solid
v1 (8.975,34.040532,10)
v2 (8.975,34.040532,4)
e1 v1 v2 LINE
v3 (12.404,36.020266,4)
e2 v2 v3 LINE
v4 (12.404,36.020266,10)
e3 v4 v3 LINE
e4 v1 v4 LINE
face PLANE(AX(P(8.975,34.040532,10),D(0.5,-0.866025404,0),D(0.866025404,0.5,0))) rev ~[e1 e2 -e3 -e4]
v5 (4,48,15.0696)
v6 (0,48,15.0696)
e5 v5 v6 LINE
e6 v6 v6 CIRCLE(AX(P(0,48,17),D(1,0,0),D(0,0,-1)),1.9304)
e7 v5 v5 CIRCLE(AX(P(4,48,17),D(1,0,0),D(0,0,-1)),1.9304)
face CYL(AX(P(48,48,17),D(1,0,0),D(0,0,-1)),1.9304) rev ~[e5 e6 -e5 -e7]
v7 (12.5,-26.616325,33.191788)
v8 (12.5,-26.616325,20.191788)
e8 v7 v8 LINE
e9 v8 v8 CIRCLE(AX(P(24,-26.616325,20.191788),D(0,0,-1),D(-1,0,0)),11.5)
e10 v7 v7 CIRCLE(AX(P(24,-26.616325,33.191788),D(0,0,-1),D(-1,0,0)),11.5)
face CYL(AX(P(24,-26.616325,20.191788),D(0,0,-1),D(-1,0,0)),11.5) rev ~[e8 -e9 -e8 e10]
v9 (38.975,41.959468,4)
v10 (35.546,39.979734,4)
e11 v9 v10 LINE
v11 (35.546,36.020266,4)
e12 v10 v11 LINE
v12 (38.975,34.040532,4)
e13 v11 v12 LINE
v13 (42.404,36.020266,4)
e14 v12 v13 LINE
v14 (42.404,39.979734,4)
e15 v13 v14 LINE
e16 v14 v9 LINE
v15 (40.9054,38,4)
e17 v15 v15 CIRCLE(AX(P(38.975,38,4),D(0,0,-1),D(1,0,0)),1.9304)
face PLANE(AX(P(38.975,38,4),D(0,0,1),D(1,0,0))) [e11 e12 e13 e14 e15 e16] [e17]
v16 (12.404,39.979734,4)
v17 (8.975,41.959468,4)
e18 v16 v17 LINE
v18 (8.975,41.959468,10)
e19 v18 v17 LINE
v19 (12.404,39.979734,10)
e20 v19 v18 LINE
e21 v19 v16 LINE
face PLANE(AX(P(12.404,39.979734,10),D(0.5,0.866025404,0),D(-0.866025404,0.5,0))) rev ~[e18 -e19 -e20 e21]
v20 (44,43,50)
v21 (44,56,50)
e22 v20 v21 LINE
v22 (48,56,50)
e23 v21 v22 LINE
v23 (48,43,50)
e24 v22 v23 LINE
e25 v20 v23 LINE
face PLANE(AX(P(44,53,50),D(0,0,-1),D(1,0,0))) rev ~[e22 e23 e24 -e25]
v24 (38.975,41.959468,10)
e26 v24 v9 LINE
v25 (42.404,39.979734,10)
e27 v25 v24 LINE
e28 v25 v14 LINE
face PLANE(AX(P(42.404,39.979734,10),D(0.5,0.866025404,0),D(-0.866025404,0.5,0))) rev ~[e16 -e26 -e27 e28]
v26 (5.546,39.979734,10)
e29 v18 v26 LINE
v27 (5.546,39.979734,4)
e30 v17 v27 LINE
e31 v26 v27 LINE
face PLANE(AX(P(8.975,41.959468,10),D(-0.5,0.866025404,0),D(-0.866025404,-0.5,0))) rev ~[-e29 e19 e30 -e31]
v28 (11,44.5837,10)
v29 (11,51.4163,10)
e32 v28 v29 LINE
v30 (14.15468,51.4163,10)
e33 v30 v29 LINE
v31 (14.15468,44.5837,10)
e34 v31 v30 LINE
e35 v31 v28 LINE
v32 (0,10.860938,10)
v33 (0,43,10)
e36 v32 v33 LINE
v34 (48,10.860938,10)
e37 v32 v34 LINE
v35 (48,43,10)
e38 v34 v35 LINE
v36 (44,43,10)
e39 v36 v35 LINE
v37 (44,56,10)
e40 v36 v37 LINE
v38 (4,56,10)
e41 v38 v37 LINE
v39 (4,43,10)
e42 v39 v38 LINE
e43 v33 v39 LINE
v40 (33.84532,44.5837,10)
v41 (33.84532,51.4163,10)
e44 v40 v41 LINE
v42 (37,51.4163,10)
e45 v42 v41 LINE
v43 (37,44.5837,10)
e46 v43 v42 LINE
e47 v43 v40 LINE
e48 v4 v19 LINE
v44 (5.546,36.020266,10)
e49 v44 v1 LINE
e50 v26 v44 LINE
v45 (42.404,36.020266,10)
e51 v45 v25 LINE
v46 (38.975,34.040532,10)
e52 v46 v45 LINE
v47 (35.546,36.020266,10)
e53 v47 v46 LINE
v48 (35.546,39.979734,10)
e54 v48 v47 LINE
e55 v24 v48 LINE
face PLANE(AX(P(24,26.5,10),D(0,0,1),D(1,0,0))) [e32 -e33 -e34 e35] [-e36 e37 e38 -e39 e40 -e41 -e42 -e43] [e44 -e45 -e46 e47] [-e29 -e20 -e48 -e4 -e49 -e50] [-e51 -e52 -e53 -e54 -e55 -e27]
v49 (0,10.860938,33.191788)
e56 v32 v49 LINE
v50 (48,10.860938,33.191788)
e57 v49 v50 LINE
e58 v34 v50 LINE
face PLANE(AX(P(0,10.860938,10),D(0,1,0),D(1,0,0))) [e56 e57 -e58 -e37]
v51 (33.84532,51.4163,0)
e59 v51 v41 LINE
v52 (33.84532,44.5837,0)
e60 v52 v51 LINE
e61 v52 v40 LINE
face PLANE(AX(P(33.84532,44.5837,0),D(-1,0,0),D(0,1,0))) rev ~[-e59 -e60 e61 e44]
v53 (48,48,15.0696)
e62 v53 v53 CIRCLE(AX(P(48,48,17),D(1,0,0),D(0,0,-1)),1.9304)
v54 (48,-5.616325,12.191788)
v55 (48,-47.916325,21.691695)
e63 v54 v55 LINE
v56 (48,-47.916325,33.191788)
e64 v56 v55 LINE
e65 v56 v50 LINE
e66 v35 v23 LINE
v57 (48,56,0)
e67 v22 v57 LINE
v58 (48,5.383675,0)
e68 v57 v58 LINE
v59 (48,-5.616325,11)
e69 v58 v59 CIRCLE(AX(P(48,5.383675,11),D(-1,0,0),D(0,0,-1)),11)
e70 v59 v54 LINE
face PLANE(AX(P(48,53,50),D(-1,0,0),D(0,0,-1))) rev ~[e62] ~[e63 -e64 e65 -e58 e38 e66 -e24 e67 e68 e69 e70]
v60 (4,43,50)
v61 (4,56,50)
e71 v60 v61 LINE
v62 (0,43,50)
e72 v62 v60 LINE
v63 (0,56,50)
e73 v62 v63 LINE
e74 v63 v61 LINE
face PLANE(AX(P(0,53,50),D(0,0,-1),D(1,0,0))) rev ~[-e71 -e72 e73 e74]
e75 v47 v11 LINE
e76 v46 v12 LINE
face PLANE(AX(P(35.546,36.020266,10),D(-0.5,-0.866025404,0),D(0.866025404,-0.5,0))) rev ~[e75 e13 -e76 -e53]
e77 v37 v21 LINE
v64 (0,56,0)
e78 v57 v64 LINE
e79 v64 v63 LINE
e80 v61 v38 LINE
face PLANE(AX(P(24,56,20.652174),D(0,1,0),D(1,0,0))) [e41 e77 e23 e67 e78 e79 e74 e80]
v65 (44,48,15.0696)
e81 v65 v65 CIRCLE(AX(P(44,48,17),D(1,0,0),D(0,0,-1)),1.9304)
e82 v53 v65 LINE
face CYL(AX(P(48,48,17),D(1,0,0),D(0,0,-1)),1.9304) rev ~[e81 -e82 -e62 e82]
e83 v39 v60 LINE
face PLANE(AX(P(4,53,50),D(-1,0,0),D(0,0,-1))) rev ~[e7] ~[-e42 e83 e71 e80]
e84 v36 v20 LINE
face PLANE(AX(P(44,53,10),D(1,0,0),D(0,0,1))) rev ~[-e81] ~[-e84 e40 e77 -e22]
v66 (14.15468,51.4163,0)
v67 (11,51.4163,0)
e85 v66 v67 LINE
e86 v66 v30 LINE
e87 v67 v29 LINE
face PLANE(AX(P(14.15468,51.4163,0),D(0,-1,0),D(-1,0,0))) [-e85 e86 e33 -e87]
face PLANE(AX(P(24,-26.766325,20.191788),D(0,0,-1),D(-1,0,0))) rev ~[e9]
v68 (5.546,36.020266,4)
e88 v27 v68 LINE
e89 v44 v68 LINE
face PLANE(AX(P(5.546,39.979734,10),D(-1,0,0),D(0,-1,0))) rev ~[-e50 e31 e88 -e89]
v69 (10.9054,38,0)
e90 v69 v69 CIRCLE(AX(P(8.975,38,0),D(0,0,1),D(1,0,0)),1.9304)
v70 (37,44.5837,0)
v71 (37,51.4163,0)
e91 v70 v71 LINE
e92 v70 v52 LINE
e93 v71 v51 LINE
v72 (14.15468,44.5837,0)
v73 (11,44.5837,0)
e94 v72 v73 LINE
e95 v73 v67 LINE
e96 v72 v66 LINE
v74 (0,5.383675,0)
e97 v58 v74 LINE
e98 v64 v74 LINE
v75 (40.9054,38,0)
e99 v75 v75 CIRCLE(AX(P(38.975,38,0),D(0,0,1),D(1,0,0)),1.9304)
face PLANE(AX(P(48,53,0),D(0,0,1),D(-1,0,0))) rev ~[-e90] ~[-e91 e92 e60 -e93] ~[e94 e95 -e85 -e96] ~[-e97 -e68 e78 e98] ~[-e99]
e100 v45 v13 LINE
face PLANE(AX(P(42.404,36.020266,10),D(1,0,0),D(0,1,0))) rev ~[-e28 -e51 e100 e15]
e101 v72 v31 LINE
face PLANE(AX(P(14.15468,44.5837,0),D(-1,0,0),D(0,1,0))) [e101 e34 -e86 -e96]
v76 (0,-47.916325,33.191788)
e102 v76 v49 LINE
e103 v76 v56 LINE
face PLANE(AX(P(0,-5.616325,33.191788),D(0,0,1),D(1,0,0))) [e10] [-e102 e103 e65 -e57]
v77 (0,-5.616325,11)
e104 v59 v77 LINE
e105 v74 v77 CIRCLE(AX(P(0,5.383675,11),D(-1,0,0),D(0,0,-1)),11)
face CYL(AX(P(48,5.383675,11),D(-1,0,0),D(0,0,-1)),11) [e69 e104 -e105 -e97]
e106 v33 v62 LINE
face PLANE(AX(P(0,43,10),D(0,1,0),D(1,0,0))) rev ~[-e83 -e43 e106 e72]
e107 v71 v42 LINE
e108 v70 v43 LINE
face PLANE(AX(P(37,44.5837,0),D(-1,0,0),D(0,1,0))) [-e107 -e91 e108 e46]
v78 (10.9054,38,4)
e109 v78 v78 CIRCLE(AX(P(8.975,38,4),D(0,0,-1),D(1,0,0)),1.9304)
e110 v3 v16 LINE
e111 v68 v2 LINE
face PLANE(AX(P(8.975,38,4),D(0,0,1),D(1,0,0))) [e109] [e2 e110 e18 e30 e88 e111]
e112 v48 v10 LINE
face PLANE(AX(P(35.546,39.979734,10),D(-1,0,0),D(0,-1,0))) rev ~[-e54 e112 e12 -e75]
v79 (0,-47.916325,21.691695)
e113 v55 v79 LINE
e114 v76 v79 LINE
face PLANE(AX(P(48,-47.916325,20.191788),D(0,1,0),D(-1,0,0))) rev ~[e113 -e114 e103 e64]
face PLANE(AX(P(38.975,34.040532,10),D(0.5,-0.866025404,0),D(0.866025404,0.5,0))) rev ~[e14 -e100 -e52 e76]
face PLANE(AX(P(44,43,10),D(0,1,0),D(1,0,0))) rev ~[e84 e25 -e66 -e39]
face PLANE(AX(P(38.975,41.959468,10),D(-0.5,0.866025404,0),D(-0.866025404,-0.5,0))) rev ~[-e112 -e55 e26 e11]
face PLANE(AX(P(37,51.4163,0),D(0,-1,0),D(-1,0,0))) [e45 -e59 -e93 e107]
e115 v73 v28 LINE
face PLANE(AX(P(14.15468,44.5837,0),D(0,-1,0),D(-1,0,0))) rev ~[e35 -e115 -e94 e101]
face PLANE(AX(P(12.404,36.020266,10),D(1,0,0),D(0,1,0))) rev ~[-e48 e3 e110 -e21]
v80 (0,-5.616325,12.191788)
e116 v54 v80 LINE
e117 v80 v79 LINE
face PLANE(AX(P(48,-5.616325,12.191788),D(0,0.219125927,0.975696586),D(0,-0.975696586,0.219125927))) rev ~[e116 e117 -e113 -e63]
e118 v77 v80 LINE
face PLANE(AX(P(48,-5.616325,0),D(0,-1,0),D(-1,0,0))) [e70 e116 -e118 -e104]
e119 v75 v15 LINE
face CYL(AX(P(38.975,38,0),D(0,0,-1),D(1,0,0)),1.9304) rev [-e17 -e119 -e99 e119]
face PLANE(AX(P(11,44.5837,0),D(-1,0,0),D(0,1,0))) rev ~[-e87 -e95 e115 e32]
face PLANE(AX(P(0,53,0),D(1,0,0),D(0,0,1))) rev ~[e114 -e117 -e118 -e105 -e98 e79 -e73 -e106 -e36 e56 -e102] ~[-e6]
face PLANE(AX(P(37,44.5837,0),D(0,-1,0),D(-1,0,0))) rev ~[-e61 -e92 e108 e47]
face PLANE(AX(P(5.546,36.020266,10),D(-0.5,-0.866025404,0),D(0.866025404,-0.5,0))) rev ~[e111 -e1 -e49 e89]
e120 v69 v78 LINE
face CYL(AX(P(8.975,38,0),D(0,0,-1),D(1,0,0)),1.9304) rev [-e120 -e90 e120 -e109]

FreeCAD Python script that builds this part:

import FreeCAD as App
import Part
import Sketcher
Q = App.Units.Quantity


def edges_at(feature, points):
    """Names of the edges that pass closest to the given points."""
    edges = feature.Shape.Edges
    near = lambda p: min(range(len(edges)), key=lambda i: edges[i].distToShape(Part.Vertex(*p))[0])
    return sorted({f"Edge{near(p) + 1}" for p in points})

doc = App.newDocument("Part")
params = doc.addObject("Spreadsheet::Sheet", "Params")
for row, (alias, value) in enumerate([
    ("sketch1_width", "48 mm"),
    ("sketch1_height", "53 mm"),
    ("pad1_length", "10 mm"),
    ("sketch2_width", "48 mm"),
    ("pad2_length", "33.191788 mm"),
    ("sketch3_width", "4 mm"),
    ("sketch3_height", "10 mm"),
    ("pad3_length", "40 mm"),
    ("sketch4_width", "48 mm"),
    ("pad4_length", "23.191788 mm"),
    ("sketch5_width", "48 mm"),
    ("sketch5_height", "5 mm"),
    ("pad5_length", "42.3 mm"),
    ("sketch6_diameter", "23 mm"),
    ("sketch10_diameter", "23 mm"),
    ("sketch10_width", "48 mm"),
    ("sketch10_height", "42.3 mm"),
    ("pad6_length", "8 mm"),
    ("sketch11_width", "48 mm"),
    ("sketch11_height", "42.3 mm"),
    ("pad7_length", "8 mm"),
    ("fillet_radius", "11 mm"),
    ("sketch12_width", "4 mm"),
    ("sketch12_width2", "40 mm"),
    ("sketch12_height", "50 mm"),
    ("pad8_length", "3 mm"),
    ("pocket5_length", "6 mm"),
    ("sketch14_width", "42.3 mm"),
], start=1):
    params.set(f"A{row}", alias)
    params.set(f"B{row}", "=" + value)
    params.setAlias(f"B{row}", alias)

body = doc.addObject("PartDesign::Body", "Body")

# Sketch on XY plane
sketch1 = body.newObject("Sketcher::SketchObject", "Sketch")
sketch1.AttachmentSupport = (doc.getObject("XY_Plane"), [""])
sketch1.MapMode = "FlatFace"
sketch1.addGeometry([
    Part.LineSegment(App.Vector(0, 53, 0), App.Vector(0, 0, 0)),  # 0
    Part.LineSegment(App.Vector(0, 0, 0), App.Vector(48, 0, 0)),  # 1
    Part.LineSegment(App.Vector(48, 0, 0), App.Vector(48, 53, 0)),  # 2
    Part.LineSegment(App.Vector(48, 53, 0), App.Vector(0, 53, 0)),  # 3
    Part.Circle(App.Vector(9, 38, 0), App.Vector(0, 0, 1), 1.9),  # 4
    Part.Circle(App.Vector(39, 38, 0), App.Vector(0, 0, 1), 1.9),  # 5
], False)
sketch1.addConstraint([
    Sketcher.Constraint("Coincident", 0, 2, 1, 1),
    Sketcher.Constraint("Coincident", 1, 2, 2, 1),
    Sketcher.Constraint("Coincident", 2, 2, 3, 1),
    Sketcher.Constraint("Coincident", 3, 2, 0, 1),
    Sketcher.Constraint("Vertical", 0),
    Sketcher.Constraint("Horizontal", 1),
    Sketcher.Constraint("Vertical", 2),
    Sketcher.Constraint("Horizontal", 3),
    Sketcher.Constraint("Coincident", 0, 2, -1, 1),
    Sketcher.Constraint("Equal", 4, 5),
    Sketcher.Constraint("Horizontal", 4, 3, 5, 3),
    Sketcher.Constraint("DistanceX", 1, 1, 1, 2, Q("48 mm")),
    Sketcher.Constraint("DistanceY", 0, 2, 0, 1, Q("53 mm")),
    Sketcher.Constraint("DistanceY", -1, 1, 4, 3, Q("38 mm")),
    Sketcher.Constraint("DistanceX", 4, 3, 5, 3, Q("30 mm")),
    Sketcher.Constraint("Diameter", 4, Q("3.8608 mm")),
    Sketcher.Constraint("DistanceX", -1, 1, 4, 3, Q("8.975 mm")),
])
sketch1.setExpression("Constraints[11]", "Params.sketch1_width")
sketch1.setExpression("Constraints[12]", "Params.sketch1_height")
pad1 = body.newObject("PartDesign::Pad", "Pad")
pad1.Profile = sketch1
pad1.setExpression("Length", "Params.pad1_length")

# Sketch on XY plane
sketch2 = body.newObject("Sketcher::SketchObject", "Sketch001")
sketch2.AttachmentSupport = (doc.getObject("XY_Plane"), [""])
sketch2.MapMode = "FlatFace"
sketch2.addGeometry([
    Part.LineSegment(App.Vector(48, 0, 0), App.Vector(48, -6, 0)),
    Part.LineSegment(App.Vector(48, -6, 0), App.Vector(0, -6, 0)),
    Part.LineSegment(App.Vector(0, -6, 0), App.Vector(0, 0, 0)),
    Part.LineSegment(App.Vector(0, 0, 0), App.Vector(48, 0, 0)),
], False)
sketch2.addConstraint([
    Sketcher.Constraint("Coincident", 0, 2, 1, 1),
    Sketcher.Constraint("Coincident", 1, 2, 2, 1),
    Sketcher.Constraint("Coincident", 2, 2, 3, 1),
    Sketcher.Constraint("Coincident", 3, 2, 0, 1),
    Sketcher.Constraint("Vertical", 0),
    Sketcher.Constraint("Horizontal", 1),
    Sketcher.Constraint("Vertical", 2),
    Sketcher.Constraint("Horizontal", 3),
    Sketcher.Constraint("Coincident", 2, 2, -1, 1),
    Sketcher.Constraint("DistanceX", 1, 2, 1, 1, Q("48 mm")),
    Sketcher.Constraint("DistanceY", 0, 2, 0, 1, Q("5.616325 mm")),
])
sketch2.setExpression("Constraints[9]", "Params.sketch2_width")
pad2 = body.newObject("PartDesign::Pad", "Pad001")
pad2.Profile = sketch2
pad2.setExpression("Length", "Params.pad2_length")

# Sketch on XY plane
sketch3 = body.newObject("Sketcher::SketchObject", "Sketch002")
sketch3.AttachmentSupport = (doc.getObject("XY_Plane"), [""])
sketch3.MapMode = "FlatFace"
sketch3.AttachmentOffset = App.Placement(App.Vector(0, 0, 10), App.Rotation())
sketch3.addGeometry([
    Part.LineSegment(App.Vector(0, 53, 0), App.Vector(0, 43, 0)),  # 0
    Part.LineSegment(App.Vector(0, 43, 0), App.Vector(4, 43, 0)),  # 1
    Part.LineSegment(App.Vector(4, 43, 0), App.Vector(4, 53, 0)),  # 2
    Part.LineSegment(App.Vector(4, 53, 0), App.Vector(0, 53, 0)),  # 3
    Part.LineSegment(App.Vector(44, 53, 0), App.Vector(44, 43, 0)),  # 4
    Part.LineSegment(App.Vector(44, 43, 0), App.Vector(48, 43, 0)),  # 5
    Part.LineSegment(App.Vector(48, 43, 0), App.Vector(48, 53, 0)),  # 6
    Part.LineSegment(App.Vector(48, 53, 0), App.Vector(44, 53, 0)),  # 7
], False)
sketch3.addConstraint([
    Sketcher.Constraint("Coincident", 0, 2, 1, 1),
    Sketcher.Constraint("Coincident", 1, 2, 2, 1),
    Sketcher.Constraint("Coincident", 2, 2, 3, 1),
    Sketcher.Constraint("Coincident", 3, 2, 0, 1),
    Sketcher.Constraint("Coincident", 4, 2, 5, 1),
    Sketcher.Constraint("Coincident", 5, 2, 6, 1),
    Sketcher.Constraint("Coincident", 6, 2, 7, 1),
    Sketcher.Constraint("Coincident", 7, 2, 4, 1),
    Sketcher.Constraint("Vertical", 0),
    Sketcher.Constraint("Horizontal", 1),
    Sketcher.Constraint("Vertical", 2),
    Sketcher.Constraint("Horizontal", 3),
    Sketcher.Constraint("Vertical", 4),
    Sketcher.Constraint("Horizontal", 5),
    Sketcher.Constraint("Vertical", 6),
    Sketcher.Constraint("Horizontal", 7),
    Sketcher.Constraint("PointOnObject", 0, 2, -2),
    Sketcher.Constraint("Horizontal", 1, 2, 4, 2),
    Sketcher.Constraint("Horizontal", 3, 2, 6, 2),
    Sketcher.Constraint("Equal", 3, 5),
    Sketcher.Constraint("DistanceX", 1, 1, 1, 2, Q("4 mm")),
    Sketcher.Constraint("DistanceY", 0, 2, 0, 1, Q("10 mm")),
    Sketcher.Constraint("DistanceY", -1, 1, 0, 2, Q("43 mm")),
    Sketcher.Constraint("DistanceX", -1, 1, 4, 2, Q("44 mm")),
])
sketch3.setExpression("Constraints[20]", "Params.sketch3_width")
sketch3.setExpression("Constraints[21]", "Params.sketch3_height")
pad3 = body.newObject("PartDesign::Pad", "Pad002")
pad3.Profile = sketch3
pad3.setExpression("Length", "Params.pad3_length")

# Sketch on XY plane
sketch4 = body.newObject("Sketcher::SketchObject", "Sketch003")
sketch4.AttachmentSupport = (doc.getObject("XY_Plane"), [""])
sketch4.MapMode = "FlatFace"
sketch4.AttachmentOffset = App.Placement(App.Vector(0, 0, 10), App.Rotation())
sketch4.addGeometry([
    Part.LineSegment(App.Vector(0, 11, 0), App.Vector(0, 0, 0)),
    Part.LineSegment(App.Vector(0, 0, 0), App.Vector(48, 0, 0)),
    Part.LineSegment(App.Vector(48, 0, 0), App.Vector(48, 11, 0)),
    Part.LineSegment(App.Vector(48, 11, 0), App.Vector(0, 11, 0)),
], False)
sketch4.addConstraint([
    Sketcher.Constraint("Coincident", 0, 2, 1, 1),
    Sketcher.Constraint("Coincident", 1, 2, 2, 1),
    Sketcher.Constraint("Coincident", 2, 2, 3, 1),
    Sketcher.Constraint("Coincident", 3, 2, 0, 1),
    Sketcher.Constraint("Vertical", 0),
    Sketcher.Constraint("Horizontal", 1),
    Sketcher.Constraint("Vertical", 2),
    Sketcher.Constraint("Horizontal", 3),
    Sketcher.Constraint("Coincident", 0, 2, -1, 1),
    Sketcher.Constraint("DistanceX", 1, 1, 1, 2, Q("48 mm")),
    Sketcher.Constraint("DistanceY", 0, 2, 0, 1, Q("10.860938 mm")),
])
sketch4.setExpression("Constraints[9]", "Params.sketch4_width")
pad4 = body.newObject("PartDesign::Pad", "Pad003")
pad4.Profile = sketch4
pad4.setExpression("Length", "Params.pad4_length")

# Sketch on XZ plane
sketch5 = body.newObject("Sketcher::SketchObject", "Sketch004")
sketch5.AttachmentSupport = (doc.getObject("XZ_Plane"), [""])
sketch5.MapMode = "FlatFace"
sketch5.AttachmentOffset = App.Placement(App.Vector(0, 0, 5.616325), App.Rotation())
sketch5.addGeometry([
    Part.LineSegment(App.Vector(0, 33, 0), App.Vector(0, 28, 0)),
    Part.LineSegment(App.Vector(0, 28, 0), App.Vector(48, 28, 0)),
    Part.LineSegment(App.Vector(48, 28, 0), App.Vector(48, 33, 0)),
    Part.LineSegment(App.Vector(48, 33, 0), App.Vector(0, 33, 0)),
], False)
sketch5.addConstraint([
    Sketcher.Constraint("Coincident", 0, 2, 1, 1),
    Sketcher.Constraint("Coincident", 1, 2, 2, 1),
    Sketcher.Constraint("Coincident", 2, 2, 3, 1),
    Sketcher.Constraint("Coincident", 3, 2, 0, 1),
    Sketcher.Constraint("Vertical", 0),
    Sketcher.Constraint("Horizontal", 1),
    Sketcher.Constraint("Vertical", 2),
    Sketcher.Constraint("Horizontal", 3),
    Sketcher.Constraint("PointOnObject", 0, 2, -2),
    Sketcher.Constraint("DistanceX", 1, 1, 1, 2, Q("48 mm")),
    Sketcher.Constraint("DistanceY", 0, 2, 0, 1, Q("5 mm")),
    Sketcher.Constraint("DistanceY", -1, 1, 0, 2, Q("28.191788 mm")),
])
sketch5.setExpression("Constraints[9]", "Params.sketch5_width")
sketch5.setExpression("Constraints[10]", "Params.sketch5_height")
pad5 = body.newObject("PartDesign::Pad", "Pad004")
pad5.Profile = sketch5
pad5.setExpression("Length", "Params.pad5_length")

# Sketch on XY plane
sketch6 = body.newObject("Sketcher::SketchObject", "Sketch005")
sketch6.AttachmentSupport = (doc.getObject("XY_Plane"), [""])
sketch6.MapMode = "FlatFace"
sketch6.AttachmentOffset = App.Placement(App.Vector(0, 0, 28.191788), App.Rotation())
sketch6.addGeometry(Part.Circle(App.Vector(24, -27, 0), App.Vector(0, 0, 1), 12), False)
sketch6.addConstraint([
    Sketcher.Constraint("Diameter", 0, Q("23 mm")),
    Sketcher.Constraint("DistanceX", -1, 1, 0, 3, Q("24 mm")),
    Sketcher.Constraint("DistanceY", 0, 3, -1, 1, Q("26.616325 mm")),
])
sketch6.setExpression("Constraints[0]", "Params.sketch6_diameter")
pocket1 = body.newObject("PartDesign::Pocket", "Pocket")
pocket1.Profile = sketch6
pocket1.Type = "UpToFirst"
pocket1.Reversed = True

# Sketch on YZ plane
sketch7 = body.newObject("Sketcher::SketchObject", "Sketch006")
sketch7.AttachmentSupport = (doc.getObject("YZ_Plane"), [""])
sketch7.MapMode = "FlatFace"
sketch7.AttachmentOffset = App.Placement(App.Vector(0, 0, 48), App.Rotation())
sketch7.addGeometry(Part.Circle(App.Vector(48, 17, 0), App.Vector(0, 0, 1), 1.9), False)
sketch7.addConstraint([
    Sketcher.Constraint("DistanceX", -1, 1, 0, 3, Q("48 mm")),
    Sketcher.Constraint("DistanceY", -1, 1, 0, 3, Q("17 mm")),
    Sketcher.Constraint("Diameter", 0, Q("3.8608 mm")),
])
pocket2 = body.newObject("PartDesign::Pocket", "Pocket001")
pocket2.Profile = sketch7
pocket2.Type = "ThroughAll"

# Sketch on XY plane
sketch8 = body.newObject("Sketcher::SketchObject", "Sketch007")
sketch8.AttachmentSupport = (doc.getObject("XY_Plane"), [""])
sketch8.MapMode = "FlatFace"
sketch8.addGeometry([
    Part.LineSegment(App.Vector(37, 51.4, 0), App.Vector(37, 44.6, 0)),
    Part.LineSegment(App.Vector(37, 44.6, 0), App.Vector(33.8, 44.6, 0)),
    Part.LineSegment(App.Vector(33.8, 44.6, 0), App.Vector(33.8, 51.4, 0)),
    Part.LineSegment(App.Vector(33.8, 51.4, 0), App.Vector(37, 51.4, 0)),
], False)
sketch8.addConstraint([
    Sketcher.Constraint("Coincident", 0, 2, 1, 1),
    Sketcher.Constraint("Coincident", 1, 2, 2, 1),
    Sketcher.Constraint("Coincident", 2, 2, 3, 1),
    Sketcher.Constraint("Coincident", 3, 2, 0, 1),
    Sketcher.Constraint("Vertical", 0),
    Sketcher.Constraint("Horizontal", 1),
    Sketcher.Constraint("Vertical", 2),
    Sketcher.Constraint("Horizontal", 3),
    Sketcher.Constraint("DistanceX", -1, 1, 0, 2, Q("37 mm")),
    Sketcher.Constraint("DistanceY", 0, 2, 0, 1, Q("6.8326 mm")),
    Sketcher.Constraint("DistanceX", 1, 2, 1, 1, Q("3.15468 mm")),
    Sketcher.Constraint("DistanceY", -1, 1, 0, 2, Q("44.5837 mm")),
])
pocket3 = body.newObject("PartDesign::Pocket", "Pocket002")
pocket3.Profile = sketch8
pocket3.Type = "UpToFirst"
pocket3.Reversed = True

# Sketch on XY plane
sketch9 = body.newObject("Sketcher::SketchObject", "Sketch008")
sketch9.AttachmentSupport = (doc.getObject("XY_Plane"), [""])
sketch9.MapMode = "FlatFace"
sketch9.addGeometry([
    Part.LineSegment(App.Vector(14.2, 51.4, 0), App.Vector(14.2, 44.6, 0)),
    Part.LineSegment(App.Vector(14.2, 44.6, 0), App.Vector(11, 44.6, 0)),
    Part.LineSegment(App.Vector(11, 44.6, 0), App.Vector(11, 51.4, 0)),
    Part.LineSegment(App.Vector(11, 51.4, 0), App.Vector(14.2, 51.4, 0)),
], False)
sketch9.addConstraint([
    Sketcher.Constraint("Coincident", 0, 2, 1, 1),
    Sketcher.Constraint("Coincident", 1, 2, 2, 1),
    Sketcher.Constraint("Coincident", 2, 2, 3, 1),
    Sketcher.Constraint("Coincident", 3, 2, 0, 1),
    Sketcher.Constraint("Vertical", 0),
    Sketcher.Constraint("Horizontal", 1),
    Sketcher.Constraint("Vertical", 2),
    Sketcher.Constraint("Horizontal", 3),
    Sketcher.Constraint("DistanceX", -1, 1, 1, 2, Q("11 mm")),
    Sketcher.Constraint("DistanceY", 0, 2, 0, 1, Q("6.8326 mm")),
    Sketcher.Constraint("DistanceX", 1, 2, 1, 1, Q("3.15468 mm")),
    Sketcher.Constraint("DistanceY", -1, 1, 0, 2, Q("44.5837 mm")),
])
pocket4 = body.newObject("PartDesign::Pocket", "Pocket003")
pocket4.Profile = sketch9
pocket4.Type = "UpToFirst"
pocket4.Reversed = True

# Sketch on XY plane
sketch10 = body.newObject("Sketcher::SketchObject", "Sketch009")
sketch10.AttachmentSupport = (doc.getObject("XY_Plane"), [""])
sketch10.MapMode = "FlatFace"
sketch10.AttachmentOffset = App.Placement(App.Vector(0, 0, 20.191788), App.Rotation())
sketch10.addGeometry([
    Part.LineSegment(App.Vector(48, -6, 0), App.Vector(48, -48, 0)),  # 0
    Part.LineSegment(App.Vector(48, -48, 0), App.Vector(0, -48, 0)),  # 1
    Part.LineSegment(App.Vector(0, -48, 0), App.Vector(0, -6, 0)),  # 2
    Part.LineSegment(App.Vector(0, -6, 0), App.Vector(48, -6, 0)),  # 3
    Part.Circle(App.Vector(24, -27, 0), App.Vector(0, 0, 1), 12),  # 4
], False)
sketch10.addConstraint([
    Sketcher.Constraint("Coincident", 0, 2, 1, 1),
    Sketcher.Constraint("Coincident", 1, 2, 2, 1),
    Sketcher.Constraint("Coincident", 2, 2, 3, 1),
    Sketcher.Constraint("Coincident", 3, 2, 0, 1),
    Sketcher.Constraint("Vertical", 0),
    Sketcher.Constraint("Horizontal", 1),
    Sketcher.Constraint("Vertical", 2),
    Sketcher.Constraint("Horizontal", 3),
    Sketcher.Constraint("PointOnObject", 1, 2, -2),
    Sketcher.Constraint("Diameter", 4, Q("23 mm")),
    Sketcher.Constraint("DistanceX", 1, 2, 1, 1, Q("48 mm")),
    Sketcher.Constraint("DistanceY", 0, 2, 0, 1, Q("42.3 mm")),
    Sketcher.Constraint("DistanceX", -1, 1, 4, 3, Q("24 mm")),
    Sketcher.Constraint("DistanceY", 4, 3, 2, 2, Q("21 mm")),
    Sketcher.Constraint("DistanceY", 4, 3, -1, 1, Q("26.616325 mm")),
])
sketch10.setExpression("Constraints[9]", "Params.sketch10_diameter")
sketch10.setExpression("Constraints[10]", "Params.sketch10_width")
sketch10.setExpression("Constraints[11]", "Params.sketch10_height")
pad6 = body.newObject("PartDesign::Pad", "Pad005")
pad6.Profile = sketch10
pad6.setExpression("Length", "Params.pad6_length")

# Sketch on XY plane
sketch11 = body.newObject("Sketcher::SketchObject", "Sketch010")
sketch11.AttachmentSupport = (doc.getObject("XY_Plane"), [""])
sketch11.MapMode = "FlatFace"
sketch11.AttachmentOffset = App.Placement(App.Vector(0, 0, 20.191788), App.Rotation())
sketch11.addGeometry([
    Part.LineSegment(App.Vector(48, -6, 0), App.Vector(48, -48, 0)),
    Part.LineSegment(App.Vector(48, -48, 0), App.Vector(0, -48, 0)),
    Part.LineSegment(App.Vector(0, -48, 0), App.Vector(0, -6, 0)),
    Part.LineSegment(App.Vector(0, -6, 0), App.Vector(48, -6, 0)),
], False)
sketch11.addConstraint([
    Sketcher.Constraint("Coincident", 0, 2, 1, 1),
    Sketcher.Constraint("Coincident", 1, 2, 2, 1),
    Sketcher.Constraint("Coincident", 2, 2, 3, 1),
    Sketcher.Constraint("Coincident", 3, 2, 0, 1),
    Sketcher.Constraint("Vertical", 0),
    Sketcher.Constraint("Horizontal", 1),
    Sketcher.Constraint("Vertical", 2),
    Sketcher.Constraint("Horizontal", 3),
    Sketcher.Constraint("PointOnObject", 1, 2, -2),
    Sketcher.Constraint("DistanceX", 1, 2, 1, 1, Q("48 mm")),
    Sketcher.Constraint("DistanceY", 0, 2, 0, 1, Q("42.3 mm")),
    Sketcher.Constraint("DistanceY", 0, 2, -1, 1, Q("47.916325 mm")),
])
sketch11.setExpression("Constraints[9]", "Params.sketch11_width")
sketch11.setExpression("Constraints[10]", "Params.sketch11_height")
pad7 = body.newObject("PartDesign::Pad", "Pad006")
pad7.Profile = sketch11
pad7.setExpression("Length", "Params.pad7_length")
pad7.Reversed = True
doc.recompute()

fillet = body.newObject("PartDesign::Fillet", "Fillet")
fillet.Base = (pad7, edges_at(pad7, [(24, -5.616, 0)]))
fillet.setExpression("Radius", "Params.fillet_radius")

# Sketch on XZ plane
sketch12 = body.newObject("Sketcher::SketchObject", "Sketch011")
sketch12.AttachmentSupport = (doc.getObject("XZ_Plane"), [""])
sketch12.MapMode = "FlatFace"
sketch12.AttachmentOffset = App.Placement(App.Vector(0, 0, -53), App.Rotation())
sketch12.addGeometry([
    Part.LineSegment(App.Vector(0, 0, 0), App.Vector(0, 50, 0)),  # 0
    Part.LineSegment(App.Vector(0, 50, 0), App.Vector(4, 50, 0)),  # 1
    Part.LineSegment(App.Vector(4, 50, 0), App.Vector(4, 10, 0)),  # 2
    Part.LineSegment(App.Vector(4, 10, 0), App.Vector(44, 10, 0)),  # 3
    Part.LineSegment(App.Vector(44, 10, 0), App.Vector(44, 50, 0)),  # 4
    Part.LineSegment(App.Vector(44, 50, 0), App.Vector(48, 50, 0)),  # 5
    Part.LineSegment(App.Vector(48, 50, 0), App.Vector(48, 0, 0)),  # 6
    Part.LineSegment(App.Vector(48, 0, 0), App.Vector(0, 0, 0)),  # 7
], False)
sketch12.addConstraint([
    Sketcher.Constraint("Coincident", 0, 2, 1, 1),
    Sketcher.Constraint("Coincident", 1, 2, 2, 1),
    Sketcher.Constraint("Coincident", 2, 2, 3, 1),
    Sketcher.Constraint("Coincident", 3, 2, 4, 1),
    Sketcher.Constraint("Coincident", 4, 2, 5, 1),
    Sketcher.Constraint("Coincident", 5, 2, 6, 1),
    Sketcher.Constraint("Coincident", 6, 2, 7, 1),
    Sketcher.Constraint("Coincident", 7, 2, 0, 1),
    Sketcher.Constraint("Vertical", 0),
    Sketcher.Constraint("Horizontal", 1),
    Sketcher.Constraint("Vertical", 2),
    Sketcher.Constraint("Horizontal", 3),
    Sketcher.Constraint("Vertical", 4),
    Sketcher.Constraint("Horizontal", 5),
    Sketcher.Constraint("Vertical", 6),
    Sketcher.Constraint("Horizontal", 7),
    Sketcher.Constraint("Coincident", 7, 2, -1, 1),
    Sketcher.Constraint("Horizontal", 1, 2, 4, 2),
    Sketcher.Constraint("Equal", 1, 5),
    Sketcher.Constraint("Equal", 3, 2),
    Sketcher.Constraint("DistanceX", 1, 1, 1, 2, Q("4 mm")),
    Sketcher.Constraint("DistanceX", 3, 1, 3, 2, Q("40 mm")),
    Sketcher.Constraint("DistanceY", 0, 1, 0, 2, Q("50 mm")),
])
sketch12.setExpression("Constraints[20]", "Params.sketch12_width")
sketch12.setExpression("Constraints[21]", "Params.sketch12_width2")
sketch12.setExpression("Constraints[22]", "Params.sketch12_height")
pad8 = body.newObject("PartDesign::Pad", "Pad007")
pad8.Profile = sketch12
pad8.setExpression("Length", "Params.pad8_length")
pad8.Reversed = True

# Sketch on XY plane
sketch13 = body.newObject("Sketcher::SketchObject", "Sketch012")
sketch13.AttachmentSupport = (doc.getObject("XY_Plane"), [""])
sketch13.MapMode = "FlatFace"
sketch13.AttachmentOffset = App.Placement(App.Vector(0, 0, 10), App.Rotation())
sketch13.addGeometry([
    Part.LineSegment(App.Vector(9, 42, 0), App.Vector(5.5, 40, 0)),  # 0
    Part.LineSegment(App.Vector(5.5, 40, 0), App.Vector(5.5, 36, 0)),  # 1
    Part.LineSegment(App.Vector(5.5, 36, 0), App.Vector(9, 34, 0)),  # 2
    Part.LineSegment(App.Vector(9, 34, 0), App.Vector(12.4, 36, 0)),  # 3
    Part.LineSegment(App.Vector(12.4, 36, 0), App.Vector(12.4, 40, 0)),  # 4
    Part.LineSegment(App.Vector(12.4, 40, 0), App.Vector(9, 42, 0)),  # 5
    Part.LineSegment(App.Vector(39, 42, 0), App.Vector(35.5, 40, 0)),  # 6
    Part.LineSegment(App.Vector(35.5, 40, 0), App.Vector(35.5, 36, 0)),  # 7
    Part.LineSegment(App.Vector(35.5, 36, 0), App.Vector(39, 34, 0)),  # 8
    Part.LineSegment(App.Vector(39, 34, 0), App.Vector(42.4, 36, 0)),  # 9
    Part.LineSegment(App.Vector(42.4, 36, 0), App.Vector(42.4, 40, 0)),  # 10
    Part.LineSegment(App.Vector(42.4, 40, 0), App.Vector(39, 42, 0)),  # 11
], False)
sketch13.addConstraint([
    Sketcher.Constraint("Coincident", 0, 2, 1, 1),
    Sketcher.Constraint("Coincident", 1, 2, 2, 1),
    Sketcher.Constraint("Coincident", 2, 2, 3, 1),
    Sketcher.Constraint("Coincident", 3, 2, 4, 1),
    Sketcher.Constraint("Coincident", 4, 2, 5, 1),
    Sketcher.Constraint("Coincident", 5, 2, 0, 1),
    Sketcher.Constraint("Coincident", 6, 2, 7, 1),
    Sketcher.Constraint("Coincident", 7, 2, 8, 1),
    Sketcher.Constraint("Coincident", 8, 2, 9, 1),
    Sketcher.Constraint("Coincident", 9, 2, 10, 1),
    Sketcher.Constraint("Coincident", 10, 2, 11, 1),
    Sketcher.Constraint("Coincident", 11, 2, 6, 1),
    Sketcher.Constraint("Vertical", 1),
    Sketcher.Constraint("Vertical", 4),
    Sketcher.Constraint("Vertical", 7),
    Sketcher.Constraint("Vertical", 10),
    Sketcher.Constraint("Parallel", 0, 3),
    Sketcher.Constraint("Parallel", 2, 5),
    Sketcher.Constraint("Parallel", 3, 6),
    Sketcher.Constraint("Parallel", 5, 8),
    Sketcher.Constraint("Parallel", 6, 9),
    Sketcher.Constraint("Parallel", 8, 11),
    Sketcher.Constraint("Horizontal", 1, 2, 3, 2),
    Sketcher.Constraint("Horizontal", 0, 2, 4, 2),
    Sketcher.Constraint("Horizontal", 4, 2, 6, 2),
    Sketcher.Constraint("Horizontal", 3, 2, 7, 2),
    Sketcher.Constraint("Horizontal", 2, 2, 8, 2),
    Sketcher.Constraint("Horizontal", 7, 2, 9, 2),
    Sketcher.Constraint("Horizontal", 6, 2, 10, 2),
    Sketcher.Constraint("Vertical", 2, 2, 5, 2),
    Sketcher.Constraint("Angle", 0, Q("-150 deg")),
    Sketcher.Constraint("DistanceX", 0, 2, 6, 2, Q("30 mm")),
    Sketcher.Constraint("DistanceX", -1, 1, 0, 2, Q("5.546 mm")),
    Sketcher.Constraint("DistanceX", -1, 1, 2, 2, Q("8.975 mm")),
    Sketcher.Constraint("DistanceY", 1, 2, 1, 1, Q("3.959468 mm")),
    Sketcher.Constraint("DistanceY", -1, 1, 2, 2, Q("34.040532 mm")),
])
pocket5 = body.newObject("PartDesign::Pocket", "Pocket004")
pocket5.Profile = sketch13
pocket5.setExpression("Length", "Params.pocket5_length")

# Sketch on YZ plane
sketch14 = body.newObject("Sketcher::SketchObject", "Sketch013")
sketch14.AttachmentSupport = (doc.getObject("YZ_Plane"), [""])
sketch14.MapMode = "FlatFace"
sketch14.AttachmentOffset = App.Placement(App.Vector(0, 0, 48), App.Rotation())
sketch14.addGeometry([
    Part.LineSegment(App.Vector(-6, 12, 0), App.Vector(-48, 22, 0)),
    Part.LineSegment(App.Vector(-48, 22, 0), App.Vector(-48, 12, 0)),
    Part.LineSegment(App.Vector(-48, 12, 0), App.Vector(-6, 12, 0)),
], False)
sketch14.addConstraint([
    Sketcher.Constraint("Coincident", 0, 2, 1, 1),
    Sketcher.Constraint("Coincident", 1, 2, 2, 1),
    Sketcher.Constraint("Coincident", 2, 2, 0, 1),
    Sketcher.Constraint("Vertical", 1),
    Sketcher.Constraint("Horizontal", 2),
    Sketcher.Constraint("DistanceX", 2, 1, 2, 2, Q("42.3 mm")),
    Sketcher.Constraint("Distance", 0, Q("43.353641 mm")),
    Sketcher.Constraint("DistanceX", 0, 2, -1, 1, Q("47.916325 mm")),
    Sketcher.Constraint("DistanceY", -1, 1, 0, 2, Q("21.691695 mm")),
])
sketch14.setExpression("Constraints[5]", "Params.sketch14_width")
pocket6 = body.newObject("PartDesign::Pocket", "Pocket005")
pocket6.Profile = sketch14
pocket6.Type = "ThroughAll"

doc.recompute()
